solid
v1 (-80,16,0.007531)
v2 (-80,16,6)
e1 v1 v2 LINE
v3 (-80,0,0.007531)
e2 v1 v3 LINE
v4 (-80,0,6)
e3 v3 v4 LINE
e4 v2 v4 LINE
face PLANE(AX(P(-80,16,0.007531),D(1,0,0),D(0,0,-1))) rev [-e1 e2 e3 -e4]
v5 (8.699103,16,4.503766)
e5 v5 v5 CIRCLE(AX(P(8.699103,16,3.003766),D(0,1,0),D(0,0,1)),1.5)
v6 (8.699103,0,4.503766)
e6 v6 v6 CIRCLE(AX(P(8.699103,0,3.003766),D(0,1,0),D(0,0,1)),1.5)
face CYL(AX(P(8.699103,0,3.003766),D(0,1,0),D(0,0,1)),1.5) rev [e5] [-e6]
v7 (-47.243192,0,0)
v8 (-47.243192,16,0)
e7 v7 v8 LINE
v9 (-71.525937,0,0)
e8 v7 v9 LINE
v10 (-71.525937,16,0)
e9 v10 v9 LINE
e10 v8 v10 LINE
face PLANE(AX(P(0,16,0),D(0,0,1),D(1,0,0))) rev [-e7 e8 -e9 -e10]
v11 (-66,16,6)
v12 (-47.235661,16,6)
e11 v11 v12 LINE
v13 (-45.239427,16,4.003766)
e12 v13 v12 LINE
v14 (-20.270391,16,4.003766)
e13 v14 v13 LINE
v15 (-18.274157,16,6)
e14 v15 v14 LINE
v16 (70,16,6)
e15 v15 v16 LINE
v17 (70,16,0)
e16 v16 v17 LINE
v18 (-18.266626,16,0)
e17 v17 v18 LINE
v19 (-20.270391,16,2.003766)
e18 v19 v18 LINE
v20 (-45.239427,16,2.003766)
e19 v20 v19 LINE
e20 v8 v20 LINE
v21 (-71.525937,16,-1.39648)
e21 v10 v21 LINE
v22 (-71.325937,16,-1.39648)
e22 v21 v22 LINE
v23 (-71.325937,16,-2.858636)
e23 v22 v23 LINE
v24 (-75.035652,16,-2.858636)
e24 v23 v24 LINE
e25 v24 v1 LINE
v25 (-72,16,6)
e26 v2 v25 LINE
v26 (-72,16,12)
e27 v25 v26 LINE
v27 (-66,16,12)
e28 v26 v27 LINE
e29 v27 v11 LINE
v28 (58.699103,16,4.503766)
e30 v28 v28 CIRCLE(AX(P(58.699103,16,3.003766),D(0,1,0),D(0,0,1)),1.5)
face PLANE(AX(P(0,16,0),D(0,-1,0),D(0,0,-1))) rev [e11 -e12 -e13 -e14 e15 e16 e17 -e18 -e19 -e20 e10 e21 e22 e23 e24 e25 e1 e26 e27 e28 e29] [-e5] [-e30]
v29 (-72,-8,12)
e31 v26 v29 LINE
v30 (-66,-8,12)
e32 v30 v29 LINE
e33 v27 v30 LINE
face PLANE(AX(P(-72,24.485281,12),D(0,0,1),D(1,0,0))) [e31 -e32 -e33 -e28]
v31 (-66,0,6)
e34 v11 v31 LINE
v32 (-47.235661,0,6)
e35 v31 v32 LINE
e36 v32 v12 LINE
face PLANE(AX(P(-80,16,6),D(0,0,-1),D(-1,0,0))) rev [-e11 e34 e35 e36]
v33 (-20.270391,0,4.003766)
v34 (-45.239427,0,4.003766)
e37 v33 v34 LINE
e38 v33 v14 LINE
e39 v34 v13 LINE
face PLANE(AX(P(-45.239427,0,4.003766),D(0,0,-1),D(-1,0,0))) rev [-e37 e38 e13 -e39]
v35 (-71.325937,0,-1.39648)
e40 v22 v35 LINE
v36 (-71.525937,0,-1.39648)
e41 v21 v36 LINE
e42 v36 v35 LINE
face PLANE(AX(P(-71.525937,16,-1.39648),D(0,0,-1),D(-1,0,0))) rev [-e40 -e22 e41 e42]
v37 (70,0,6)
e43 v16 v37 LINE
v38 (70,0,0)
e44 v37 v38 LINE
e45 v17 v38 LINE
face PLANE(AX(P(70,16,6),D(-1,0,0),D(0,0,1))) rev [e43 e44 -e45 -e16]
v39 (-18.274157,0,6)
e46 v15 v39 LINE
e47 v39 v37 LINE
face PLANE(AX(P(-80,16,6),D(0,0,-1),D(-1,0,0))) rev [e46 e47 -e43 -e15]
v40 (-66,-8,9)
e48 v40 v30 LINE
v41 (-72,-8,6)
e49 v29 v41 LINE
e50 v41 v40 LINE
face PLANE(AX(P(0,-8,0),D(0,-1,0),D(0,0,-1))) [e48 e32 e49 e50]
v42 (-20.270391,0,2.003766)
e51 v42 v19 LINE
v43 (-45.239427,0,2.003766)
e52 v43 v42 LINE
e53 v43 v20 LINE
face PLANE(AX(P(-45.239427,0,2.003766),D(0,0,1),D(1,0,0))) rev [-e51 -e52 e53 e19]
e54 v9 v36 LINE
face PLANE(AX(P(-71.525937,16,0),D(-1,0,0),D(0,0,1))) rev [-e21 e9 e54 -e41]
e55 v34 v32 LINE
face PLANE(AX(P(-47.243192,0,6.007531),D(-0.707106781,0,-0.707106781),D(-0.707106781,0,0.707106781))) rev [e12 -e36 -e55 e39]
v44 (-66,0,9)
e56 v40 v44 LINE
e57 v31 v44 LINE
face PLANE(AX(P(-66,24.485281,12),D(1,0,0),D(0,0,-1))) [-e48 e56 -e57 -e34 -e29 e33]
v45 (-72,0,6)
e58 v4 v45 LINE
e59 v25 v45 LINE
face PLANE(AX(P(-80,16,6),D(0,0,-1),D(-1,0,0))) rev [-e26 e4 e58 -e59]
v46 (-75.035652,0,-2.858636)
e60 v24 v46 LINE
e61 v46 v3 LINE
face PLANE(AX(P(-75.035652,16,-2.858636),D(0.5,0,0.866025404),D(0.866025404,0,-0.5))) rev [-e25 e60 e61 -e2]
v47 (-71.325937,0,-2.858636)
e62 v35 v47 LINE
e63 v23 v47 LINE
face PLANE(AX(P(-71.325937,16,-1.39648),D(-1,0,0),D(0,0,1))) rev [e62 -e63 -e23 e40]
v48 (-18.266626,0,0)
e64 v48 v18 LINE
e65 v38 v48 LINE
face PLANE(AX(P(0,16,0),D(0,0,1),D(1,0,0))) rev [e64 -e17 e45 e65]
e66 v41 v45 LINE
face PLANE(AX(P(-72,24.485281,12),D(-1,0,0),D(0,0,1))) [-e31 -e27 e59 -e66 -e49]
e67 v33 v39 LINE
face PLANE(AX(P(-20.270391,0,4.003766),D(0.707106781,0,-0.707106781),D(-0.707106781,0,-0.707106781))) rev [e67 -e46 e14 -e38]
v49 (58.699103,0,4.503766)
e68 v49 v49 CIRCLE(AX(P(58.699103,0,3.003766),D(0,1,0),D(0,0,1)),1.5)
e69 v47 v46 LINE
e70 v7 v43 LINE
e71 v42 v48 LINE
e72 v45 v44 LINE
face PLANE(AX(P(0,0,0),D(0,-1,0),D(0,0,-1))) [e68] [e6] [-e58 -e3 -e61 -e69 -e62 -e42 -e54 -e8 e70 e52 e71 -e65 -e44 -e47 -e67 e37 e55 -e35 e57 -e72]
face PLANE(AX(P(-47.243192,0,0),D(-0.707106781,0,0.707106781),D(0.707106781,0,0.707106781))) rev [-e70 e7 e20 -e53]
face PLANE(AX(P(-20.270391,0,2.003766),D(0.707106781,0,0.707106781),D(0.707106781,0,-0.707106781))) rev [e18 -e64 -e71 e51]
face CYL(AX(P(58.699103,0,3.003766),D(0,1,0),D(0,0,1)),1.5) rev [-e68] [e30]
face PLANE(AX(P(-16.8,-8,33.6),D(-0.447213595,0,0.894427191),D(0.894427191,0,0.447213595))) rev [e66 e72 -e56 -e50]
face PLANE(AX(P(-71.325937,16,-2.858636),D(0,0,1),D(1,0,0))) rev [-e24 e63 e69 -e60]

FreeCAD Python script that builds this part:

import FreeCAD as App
import Part
import Sketcher
from FreeCAD import Vector
Q = App.Units.Quantity

doc = App.newDocument("Part")
body = doc.addObject("PartDesign::Body", "Body")

# Sketch on XZ plane
sketch1 = body.newObject("Sketcher::SketchObject", "Sketch")
sketch1.AttachmentSupport = (doc.getObject("XZ_Plane"), [""])
sketch1.MapMode = "FlatFace"
sketch1.addGeometry(Part.LineSegment(Vector(-71.53, 0, 0), Vector(-71.53, -1.4, 0)), False)
sketch1.addGeometry(Part.LineSegment(Vector(-71.53, -1.4, 0), Vector(-71.33, -1.4, 0)), False)
sketch1.addGeometry(Part.LineSegment(Vector(-71.33, -1.4, 0), Vector(-71.33, -2.86, 0)), False)
sketch1.addGeometry(Part.LineSegment(Vector(-71.33, -2.86, 0), Vector(-75.04, -2.86, 0)), False)
sketch1.addGeometry(Part.LineSegment(Vector(-75.04, -2.86, 0), Vector(-80, 0.01, 0)), False)
sketch1.addGeometry(Part.LineSegment(Vector(-80, 0.01, 0), Vector(-80, 6, 0)), False)
sketch1.addGeometry(Part.LineSegment(Vector(-80, 6, 0), Vector(70, 6, 0)), False)
sketch1.addGeometry(Part.LineSegment(Vector(70, 6, 0), Vector(70, 0, 0)), False)
sketch1.addGeometry(Part.LineSegment(Vector(70, 0, 0), Vector(-71.53, 0, 0)), False)
sketch1.addConstraint(Sketcher.Constraint("Coincident", 0, 2, 1, 1))
sketch1.addConstraint(Sketcher.Constraint("Coincident", 1, 2, 2, 1))
sketch1.addConstraint(Sketcher.Constraint("Coincident", 2, 2, 3, 1))
sketch1.addConstraint(Sketcher.Constraint("Coincident", 3, 2, 4, 1))
sketch1.addConstraint(Sketcher.Constraint("Coincident", 4, 2, 5, 1))
sketch1.addConstraint(Sketcher.Constraint("Coincident", 5, 2, 6, 1))
sketch1.addConstraint(Sketcher.Constraint("Coincident", 6, 2, 7, 1))
sketch1.addConstraint(Sketcher.Constraint("Coincident", 7, 2, 8, 1))
sketch1.addConstraint(Sketcher.Constraint("Coincident", 8, 2, 0, 1))
sketch1.addConstraint(Sketcher.Constraint("Vertical", 0))
sketch1.addConstraint(Sketcher.Constraint("Horizontal", 1))
sketch1.addConstraint(Sketcher.Constraint("Vertical", 2))
sketch1.addConstraint(Sketcher.Constraint("Horizontal", 3))
sketch1.addConstraint(Sketcher.Constraint("Vertical", 5))
sketch1.addConstraint(Sketcher.Constraint("Horizontal", 6))
sketch1.addConstraint(Sketcher.Constraint("Vertical", 7))
sketch1.addConstraint(Sketcher.Constraint("Horizontal", 8))
sketch1.addConstraint(Sketcher.Constraint("PointOnObject", 7, 2, -1))
sketch1.addConstraint(Sketcher.Constraint("DistanceX", 6, 1, 6, 2, 150.0))
sketch1.addConstraint(Sketcher.Constraint("DistanceY", 7, 2, 7, 1, 6.0))
sketch1.addConstraint(Sketcher.Constraint("Angle", 4, Q("150 deg")))
sketch1.addConstraint(Sketcher.Constraint("DistanceX", 1, 1, 1, 2, 0.2))
sketch1.addConstraint(Sketcher.Constraint("DistanceX", 4, 2, -1, 1, 80.0))
sketch1.addConstraint(Sketcher.Constraint("DistanceY", 0, 2, 0, 1, 1.39648))
sketch1.addConstraint(Sketcher.Constraint("DistanceY", 5, 1, 5, 2, 5.992469))
sketch1.addConstraint(Sketcher.Constraint("DistanceX", 3, 2, 3, 1, 3.709716))
sketch1.addConstraint(Sketcher.Constraint("DistanceX", 8, 2, 8, 1, 141.525937))
pad1 = body.newObject("PartDesign::Pad", "Pad")
pad1.Profile = sketch1
pad1.Length = 16
pad1.Reversed = True

# Sketch on XZ plane
sketch2 = body.newObject("Sketcher::SketchObject", "Sketch001")
sketch2.AttachmentSupport = (doc.getObject("XZ_Plane"), [""])
sketch2.MapMode = "FlatFace"
sketch2.AttachmentOffset = App.Placement(Vector(0, 0, -16), App.Rotation())
sketch2.addGeometry(Part.Circle(Vector(8.7, 3, 0), Vector(0, 0, 1), 1.5), False)
sketch2.addGeometry(Part.Circle(Vector(58.7, 3, 0), Vector(0, 0, 1), 1.5), False)
sketch2.addGeometry(Part.LineSegment(Vector(-47.2, 0, 0), Vector(-45.2, 2, 0)), False)
sketch2.addGeometry(Part.LineSegment(Vector(-45.2, 2, 0), Vector(-20.3, 2, 0)), False)
sketch2.addGeometry(Part.LineSegment(Vector(-20.3, 2, 0), Vector(-18.3, 0, 0)), False)
sketch2.addGeometry(Part.LineSegment(Vector(-18.3, 0, 0), Vector(-47.2, 0, 0)), False)
sketch2.addGeometry(Part.LineSegment(Vector(-47.2, 6, 0), Vector(-18.3, 6, 0)), False)
sketch2.addGeometry(Part.LineSegment(Vector(-18.3, 6, 0), Vector(-20.3, 4, 0)), False)
sketch2.addGeometry(Part.LineSegment(Vector(-20.3, 4, 0), Vector(-45.2, 4, 0)), False)
sketch2.addGeometry(Part.LineSegment(Vector(-45.2, 4, 0), Vector(-47.2, 6, 0)), False)
sketch2.addConstraint(Sketcher.Constraint("Coincident", 2, 2, 3, 1))
sketch2.addConstraint(Sketcher.Constraint("Coincident", 3, 2, 4, 1))
sketch2.addConstraint(Sketcher.Constraint("Coincident", 4, 2, 5, 1))
sketch2.addConstraint(Sketcher.Constraint("Coincident", 5, 2, 2, 1))
sketch2.addConstraint(Sketcher.Constraint("Coincident", 6, 2, 7, 1))
sketch2.addConstraint(Sketcher.Constraint("Coincident", 7, 2, 8, 1))
sketch2.addConstraint(Sketcher.Constraint("Coincident", 8, 2, 9, 1))
sketch2.addConstraint(Sketcher.Constraint("Coincident", 9, 2, 6, 1))
sketch2.addConstraint(Sketcher.Constraint("Horizontal", 3))
sketch2.addConstraint(Sketcher.Constraint("Horizontal", 5))
sketch2.addConstraint(Sketcher.Constraint("Horizontal", 6))
sketch2.addConstraint(Sketcher.Constraint("Horizontal", 8))
sketch2.addConstraint(Sketcher.Constraint("Equal", 0, 1))
sketch2.addConstraint(Sketcher.Constraint("PointOnObject", 4, 2, -1))
sketch2.addConstraint(Sketcher.Constraint("Perpendicular", 2, 4))
sketch2.addConstraint(Sketcher.Constraint("Perpendicular", 4, 7))
sketch2.addConstraint(Sketcher.Constraint("Perpendicular", 7, 9))
sketch2.addConstraint(Sketcher.Constraint("Horizontal", 0, 3, 1, 3))
sketch2.addConstraint(Sketcher.Constraint("Vertical", 4, 2, 6, 2))
sketch2.addConstraint(Sketcher.Constraint("Vertical", 3, 2, 7, 2))
sketch2.addConstraint(Sketcher.Constraint("Vertical", 2, 2, 8, 2))
sketch2.addConstraint(Sketcher.Constraint("Vertical", 5, 2, 9, 2))
sketch2.addConstraint(Sketcher.Constraint("Diameter", 0, 3.0))
sketch2.addConstraint(Sketcher.Constraint("DistanceX", 0, 3, 1, 3, 50.0))
sketch2.addConstraint(Sketcher.Constraint("DistanceY", 2, 2, 0, 3, 1.0))
sketch2.addConstraint(Sketcher.Constraint("DistanceY", 3, 2, 7, 2, 2.0))
sketch2.addConstraint(Sketcher.Constraint("DistanceX", 2, 2, 4, 2, 26.972801))
sketch2.addConstraint(Sketcher.Constraint("DistanceX", 3, 1, 3, 2, 24.969036))
sketch2.addConstraint(Sketcher.Constraint("DistanceX", 3, 2, -1, 1, 20.270391))
sketch2.addConstraint(Sketcher.Constraint("DistanceX", 2, 2, 0, 3, 53.93853))
pocket1 = body.newObject("PartDesign::Pocket", "Pocket")
pocket1.Profile = sketch2
pocket1.Type = "ThroughAll"
pocket1.Reversed = True

# Sketch on XZ plane
sketch3 = body.newObject("Sketcher::SketchObject", "Sketch002")
sketch3.AttachmentSupport = (doc.getObject("XZ_Plane"), [""])
sketch3.MapMode = "FlatFace"
sketch3.addGeometry(Part.LineSegment(Vector(-72, 12, 0), Vector(-72, 6, 0)), False)
sketch3.addGeometry(Part.LineSegment(Vector(-72, 6, 0), Vector(-66, 6, 0)), False)
sketch3.addGeometry(Part.LineSegment(Vector(-66, 6, 0), Vector(-66, 12, 0)), False)
sketch3.addGeometry(Part.LineSegment(Vector(-66, 12, 0), Vector(-72, 12, 0)), False)
sketch3.addConstraint(Sketcher.Constraint("Coincident", 0, 2, 1, 1))
sketch3.addConstraint(Sketcher.Constraint("Coincident", 1, 2, 2, 1))
sketch3.addConstraint(Sketcher.Constraint("Coincident", 2, 2, 3, 1))
sketch3.addConstraint(Sketcher.Constraint("Coincident", 3, 2, 0, 1))
sketch3.addConstraint(Sketcher.Constraint("Vertical", 0))
sketch3.addConstraint(Sketcher.Constraint("Horizontal", 1))
sketch3.addConstraint(Sketcher.Constraint("Vertical", 2))
sketch3.addConstraint(Sketcher.Constraint("Horizontal", 3))
sketch3.addConstraint(Sketcher.Constraint("Equal", 3, 0))
sketch3.addConstraint(Sketcher.Constraint("DistanceX", 1, 1, 1, 2, 6.0))
sketch3.addConstraint(Sketcher.Constraint("DistanceX", 0, 2, -1, 1, 72.0))
sketch3.addConstraint(Sketcher.Constraint("DistanceY", -1, 1, 0, 2, 6.0))
pad2 = body.newObject("PartDesign::Pad", "Pad001")
pad2.Profile = sketch3
pad2.Length = 16
pad2.Reversed = True

# Sketch on XZ plane
sketch4 = body.newObject("Sketcher::SketchObject", "Sketch003")
sketch4.AttachmentSupport = (doc.getObject("XZ_Plane"), [""])
sketch4.MapMode = "FlatFace"
sketch4.addGeometry(Part.LineSegment(Vector(-72, 6, 0), Vector(-72, 12, 0)), False)
sketch4.addGeometry(Part.LineSegment(Vector(-72, 12, 0), Vector(-66, 12, 0)), False)
sketch4.addGeometry(Part.LineSegment(Vector(-66, 12, 0), Vector(-66, 9, 0)), False)
sketch4.addGeometry(Part.LineSegment(Vector(-66, 9, 0), Vector(-72, 6, 0)), False)
sketch4.addConstraint(Sketcher.Constraint("Coincident", 0, 2, 1, 1))
sketch4.addConstraint(Sketcher.Constraint("Coincident", 1, 2, 2, 1))
sketch4.addConstraint(Sketcher.Constraint("Coincident", 2, 2, 3, 1))
sketch4.addConstraint(Sketcher.Constraint("Coincident", 3, 2, 0, 1))
sketch4.addConstraint(Sketcher.Constraint("Vertical", 0))
sketch4.addConstraint(Sketcher.Constraint("Horizontal", 1))
sketch4.addConstraint(Sketcher.Constraint("Vertical", 2))
sketch4.addConstraint(Sketcher.Constraint("Equal", 1, 0))
sketch4.addConstraint(Sketcher.Constraint("DistanceX", 1, 1, 1, 2, 6.0))
sketch4.addConstraint(Sketcher.Constraint("DistanceY", 2, 2, 2, 1, 3.0))
sketch4.addConstraint(Sketcher.Constraint("DistanceX", 0, 2, -1, 1, 72.0))
sketch4.addConstraint(Sketcher.Constraint("DistanceY", -1, 1, 0, 2, 12.0))
pad3 = body.newObject("PartDesign::Pad", "Pad002")
pad3.Profile = sketch4
pad3.Length = 8

doc.recompute()
